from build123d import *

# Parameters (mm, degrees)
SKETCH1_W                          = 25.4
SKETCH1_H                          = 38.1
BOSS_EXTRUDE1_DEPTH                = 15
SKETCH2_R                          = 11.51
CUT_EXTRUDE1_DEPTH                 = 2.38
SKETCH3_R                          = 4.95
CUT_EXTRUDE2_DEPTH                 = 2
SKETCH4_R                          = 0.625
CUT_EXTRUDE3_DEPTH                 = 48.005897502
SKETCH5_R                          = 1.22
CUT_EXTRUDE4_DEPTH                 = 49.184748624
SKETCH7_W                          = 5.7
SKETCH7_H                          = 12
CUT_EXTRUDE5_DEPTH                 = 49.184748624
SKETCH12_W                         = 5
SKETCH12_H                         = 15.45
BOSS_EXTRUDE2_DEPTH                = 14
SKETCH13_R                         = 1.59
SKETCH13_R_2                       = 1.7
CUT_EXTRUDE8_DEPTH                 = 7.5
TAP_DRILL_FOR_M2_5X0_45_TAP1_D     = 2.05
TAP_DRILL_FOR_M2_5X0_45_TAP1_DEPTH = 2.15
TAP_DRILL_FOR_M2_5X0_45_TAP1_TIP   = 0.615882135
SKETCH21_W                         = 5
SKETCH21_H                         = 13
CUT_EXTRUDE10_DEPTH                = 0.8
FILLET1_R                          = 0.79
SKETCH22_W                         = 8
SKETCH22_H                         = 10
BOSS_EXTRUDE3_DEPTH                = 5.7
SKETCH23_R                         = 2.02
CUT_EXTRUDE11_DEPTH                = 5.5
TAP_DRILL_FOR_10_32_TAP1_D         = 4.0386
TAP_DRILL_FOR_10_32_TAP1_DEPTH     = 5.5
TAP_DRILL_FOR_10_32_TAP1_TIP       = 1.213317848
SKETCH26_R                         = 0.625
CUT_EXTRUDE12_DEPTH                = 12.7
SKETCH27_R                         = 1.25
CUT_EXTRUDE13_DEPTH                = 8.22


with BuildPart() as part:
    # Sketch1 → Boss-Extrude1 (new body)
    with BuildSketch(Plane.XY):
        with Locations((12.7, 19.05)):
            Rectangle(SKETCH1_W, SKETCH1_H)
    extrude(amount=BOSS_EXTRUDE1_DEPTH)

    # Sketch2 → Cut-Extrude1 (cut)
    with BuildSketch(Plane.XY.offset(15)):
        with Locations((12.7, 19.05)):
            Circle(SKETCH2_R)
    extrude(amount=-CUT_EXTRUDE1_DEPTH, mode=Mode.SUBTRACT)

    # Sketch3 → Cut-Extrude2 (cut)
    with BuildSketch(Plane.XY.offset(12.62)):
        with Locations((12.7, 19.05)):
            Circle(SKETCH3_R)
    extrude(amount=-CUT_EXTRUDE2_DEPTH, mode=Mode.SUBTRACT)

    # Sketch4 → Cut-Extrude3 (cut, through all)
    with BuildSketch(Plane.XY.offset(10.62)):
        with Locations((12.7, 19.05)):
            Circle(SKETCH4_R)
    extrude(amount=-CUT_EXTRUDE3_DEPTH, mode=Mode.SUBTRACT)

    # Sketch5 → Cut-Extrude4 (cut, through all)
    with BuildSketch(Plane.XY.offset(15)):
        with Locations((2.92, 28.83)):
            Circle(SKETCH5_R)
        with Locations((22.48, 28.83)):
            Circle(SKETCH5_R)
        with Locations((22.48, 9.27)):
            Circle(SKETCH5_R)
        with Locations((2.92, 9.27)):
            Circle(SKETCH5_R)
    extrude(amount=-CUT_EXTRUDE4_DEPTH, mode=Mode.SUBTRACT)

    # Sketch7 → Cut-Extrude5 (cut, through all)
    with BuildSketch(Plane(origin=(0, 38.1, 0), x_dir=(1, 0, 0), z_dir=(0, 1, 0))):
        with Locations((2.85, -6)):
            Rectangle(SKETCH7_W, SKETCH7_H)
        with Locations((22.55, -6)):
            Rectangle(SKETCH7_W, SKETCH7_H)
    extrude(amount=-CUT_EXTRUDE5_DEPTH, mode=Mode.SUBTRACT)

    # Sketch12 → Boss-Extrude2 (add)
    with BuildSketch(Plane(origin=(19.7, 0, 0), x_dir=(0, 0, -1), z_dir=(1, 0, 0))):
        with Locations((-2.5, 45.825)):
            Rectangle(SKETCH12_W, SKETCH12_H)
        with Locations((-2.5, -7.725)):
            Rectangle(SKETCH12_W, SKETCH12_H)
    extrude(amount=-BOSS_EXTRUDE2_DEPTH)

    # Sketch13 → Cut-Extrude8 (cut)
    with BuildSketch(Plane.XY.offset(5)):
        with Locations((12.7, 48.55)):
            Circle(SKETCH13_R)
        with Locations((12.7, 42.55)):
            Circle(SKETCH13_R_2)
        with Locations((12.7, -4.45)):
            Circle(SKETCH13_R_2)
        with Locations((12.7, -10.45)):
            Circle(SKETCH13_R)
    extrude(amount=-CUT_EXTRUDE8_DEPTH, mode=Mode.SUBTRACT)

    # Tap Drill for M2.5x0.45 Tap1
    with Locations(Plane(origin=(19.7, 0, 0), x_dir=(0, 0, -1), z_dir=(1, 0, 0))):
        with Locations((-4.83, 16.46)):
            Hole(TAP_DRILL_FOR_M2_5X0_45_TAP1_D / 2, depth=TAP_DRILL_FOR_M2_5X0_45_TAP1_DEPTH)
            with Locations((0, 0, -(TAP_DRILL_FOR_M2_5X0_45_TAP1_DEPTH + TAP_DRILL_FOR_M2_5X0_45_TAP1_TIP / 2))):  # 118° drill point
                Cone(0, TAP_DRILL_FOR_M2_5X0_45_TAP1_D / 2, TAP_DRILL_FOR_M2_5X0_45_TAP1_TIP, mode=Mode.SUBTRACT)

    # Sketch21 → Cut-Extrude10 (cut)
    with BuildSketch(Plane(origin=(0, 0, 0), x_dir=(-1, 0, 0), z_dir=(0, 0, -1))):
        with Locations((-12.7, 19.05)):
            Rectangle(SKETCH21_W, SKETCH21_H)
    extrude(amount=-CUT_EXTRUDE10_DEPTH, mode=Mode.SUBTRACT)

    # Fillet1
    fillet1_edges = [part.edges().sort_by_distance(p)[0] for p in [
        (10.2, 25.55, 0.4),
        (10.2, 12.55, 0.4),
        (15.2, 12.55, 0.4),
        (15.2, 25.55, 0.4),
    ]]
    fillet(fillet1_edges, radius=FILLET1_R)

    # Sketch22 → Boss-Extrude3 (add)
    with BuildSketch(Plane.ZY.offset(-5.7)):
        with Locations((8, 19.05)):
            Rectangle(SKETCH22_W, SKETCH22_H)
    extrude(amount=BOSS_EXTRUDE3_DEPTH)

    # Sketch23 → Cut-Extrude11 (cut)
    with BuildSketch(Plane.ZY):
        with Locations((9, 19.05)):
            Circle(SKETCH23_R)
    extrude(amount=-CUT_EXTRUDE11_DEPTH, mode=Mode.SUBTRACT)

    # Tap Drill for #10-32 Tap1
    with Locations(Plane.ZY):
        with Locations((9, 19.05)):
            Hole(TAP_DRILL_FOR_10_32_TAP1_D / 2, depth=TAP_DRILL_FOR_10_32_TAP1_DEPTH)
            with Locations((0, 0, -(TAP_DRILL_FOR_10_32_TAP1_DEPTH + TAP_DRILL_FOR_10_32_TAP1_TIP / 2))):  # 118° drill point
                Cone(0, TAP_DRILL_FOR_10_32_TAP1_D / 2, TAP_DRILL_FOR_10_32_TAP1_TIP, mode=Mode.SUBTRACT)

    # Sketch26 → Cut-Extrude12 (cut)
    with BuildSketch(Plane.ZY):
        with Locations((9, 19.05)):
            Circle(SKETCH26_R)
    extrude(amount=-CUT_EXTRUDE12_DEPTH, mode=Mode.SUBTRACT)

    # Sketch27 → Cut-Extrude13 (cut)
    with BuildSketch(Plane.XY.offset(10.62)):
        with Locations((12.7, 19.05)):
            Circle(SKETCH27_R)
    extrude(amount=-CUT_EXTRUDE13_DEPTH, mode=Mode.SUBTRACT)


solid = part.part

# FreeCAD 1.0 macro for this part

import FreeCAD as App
import Part
import Sketcher
from FreeCAD import Vector
Q = App.Units.Quantity


def edges_at(feature, points):
    """Names of the edges that pass closest to the given points."""
    edges = feature.Shape.Edges
    near = lambda p: min(range(len(edges)), key=lambda i: edges[i].distToShape(Part.Vertex(*p))[0])
    return sorted({f"Edge{near(p) + 1}" for p in points})

doc = App.newDocument("Part")
body = doc.addObject("PartDesign::Body", "Body")

sketch1 = body.newObject("Sketcher::SketchObject", "Sketch")
sketch1.AttachmentSupport = (doc.getObject("XY_Plane"), [""])
sketch1.MapMode = "FlatFace"
sketch1.addGeometry([
    Part.LineSegment(Vector(0, 38, 0), Vector(0, 0, 0)),
    Part.LineSegment(Vector(0, 0, 0), Vector(25, 0, 0)),
    Part.LineSegment(Vector(25, 0, 0), Vector(25, 38, 0)),
    Part.LineSegment(Vector(25, 38, 0), Vector(0, 38, 0)),
], False)
sketch1.addConstraint([
    Sketcher.Constraint("Coincident", 0, 2, 1, 1),
    Sketcher.Constraint("Coincident", 1, 2, 2, 1),
    Sketcher.Constraint("Coincident", 2, 2, 3, 1),
    Sketcher.Constraint("Coincident", 3, 2, 0, 1),
    Sketcher.Constraint("Vertical", 0),
    Sketcher.Constraint("Horizontal", 1),
    Sketcher.Constraint("Vertical", 2),
    Sketcher.Constraint("Horizontal", 3),
    Sketcher.Constraint("Coincident", 0, 2, -1, 1),
    Sketcher.Constraint("DistanceX", 1, 1, 1, 2, Q("25.4 mm")),
    Sketcher.Constraint("DistanceY", 0, 2, 0, 1, Q("38.1 mm")),
])
pad1 = body.newObject("PartDesign::Pad", "Pad")
pad1.Profile = sketch1
pad1.Length = 15

sketch2 = body.newObject("Sketcher::SketchObject", "Sketch001")
sketch2.AttachmentSupport = (doc.getObject("XY_Plane"), [""])
sketch2.MapMode = "FlatFace"
sketch2.AttachmentOffset = App.Placement(Vector(0, 0, 15), App.Rotation())
sketch2.addGeometry(Part.Circle(Vector(13, 19, 0), Vector(0, 0, 1), 12), False)
sketch2.addConstraint([
    Sketcher.Constraint("Diameter", 0, Q("23.02 mm")),
    Sketcher.Constraint("DistanceX", -1, 1, 0, 3, Q("12.7 mm")),
    Sketcher.Constraint("DistanceY", -1, 1, 0, 3, Q("19.05 mm")),
])
pocket1 = body.newObject("PartDesign::Pocket", "Pocket")
pocket1.Profile = sketch2
pocket1.Length = 2.38

sketch3 = body.newObject("Sketcher::SketchObject", "Sketch002")
sketch3.AttachmentSupport = (doc.getObject("XY_Plane"), [""])
sketch3.MapMode = "FlatFace"
sketch3.AttachmentOffset = App.Placement(Vector(0, 0, 12.62), App.Rotation())
sketch3.addGeometry(Part.Circle(Vector(12.7, 19.1, 0), Vector(0, 0, 1), 5), False)
sketch3.addConstraint([
    Sketcher.Constraint("Diameter", 0, Q("9.9 mm")),
    Sketcher.Constraint("DistanceX", -1, 1, 0, 3, Q("12.7 mm")),
    Sketcher.Constraint("DistanceY", -1, 1, 0, 3, Q("19.05 mm")),
])
pocket2 = body.newObject("PartDesign::Pocket", "Pocket001")
pocket2.Profile = sketch3
pocket2.Length = 2

sketch4 = body.newObject("Sketcher::SketchObject", "Sketch003")
sketch4.AttachmentSupport = (doc.getObject("XY_Plane"), [""])
sketch4.MapMode = "FlatFace"
sketch4.AttachmentOffset = App.Placement(Vector(0, 0, 10.62), App.Rotation())
sketch4.addGeometry(Part.Circle(Vector(12.7, 19.1, 0), Vector(0, 0, 1), 0.6), False)
sketch4.addConstraint([
    Sketcher.Constraint("Diameter", 0, Q("1.25 mm")),
    Sketcher.Constraint("DistanceX", -1, 1, 0, 3, Q("12.7 mm")),
    Sketcher.Constraint("DistanceY", -1, 1, 0, 3, Q("19.05 mm")),
])
pocket3 = body.newObject("PartDesign::Pocket", "Pocket002")
pocket3.Profile = sketch4
pocket3.Type = "ThroughAll"

sketch5 = body.newObject("Sketcher::SketchObject", "Sketch004")
sketch5.AttachmentSupport = (doc.getObject("XY_Plane"), [""])
sketch5.MapMode = "FlatFace"
sketch5.AttachmentOffset = App.Placement(Vector(0, 0, 15), App.Rotation())
sketch5.addGeometry([
    Part.Circle(Vector(2.9, 28.8, 0), Vector(0, 0, 1), 1.2),
    Part.Circle(Vector(22.5, 28.8, 0), Vector(0, 0, 1), 1.2),
    Part.Circle(Vector(22.5, 9.3, 0), Vector(0, 0, 1), 1.2),
    Part.Circle(Vector(2.9, 9.3, 0), Vector(0, 0, 1), 1.2),
], False)
sketch5.addConstraint([
    Sketcher.Constraint("Equal", 0, 1),
    Sketcher.Constraint("Equal", 1, 2),
    Sketcher.Constraint("Equal", 2, 3),
    Sketcher.Constraint("Horizontal", 0, 3, 1, 3),
    Sketcher.Constraint("Horizontal", 2, 3, 3, 3),
    Sketcher.Constraint("Vertical", 1, 3, 2, 3),
    Sketcher.Constraint("Vertical", 0, 3, 3, 3),
    Sketcher.Constraint("Diameter", 0, Q("2.44 mm")),
    Sketcher.Constraint("DistanceX", -1, 1, 0, 3, Q("2.92 mm")),
    Sketcher.Constraint("DistanceY", -1, 1, 0, 3, Q("28.83 mm")),
    Sketcher.Constraint("DistanceX", -1, 1, 1, 3, Q("22.48 mm")),
    Sketcher.Constraint("DistanceY", -1, 1, 2, 3, Q("9.27 mm")),
])
pocket4 = body.newObject("PartDesign::Pocket", "Pocket003")
pocket4.Profile = sketch5
pocket4.Type = "ThroughAll"

sketch6 = body.newObject("Sketcher::SketchObject", "Sketch005")
sketch6.AttachmentSupport = (doc.getObject("XZ_Plane"), [""])
sketch6.MapMode = "FlatFace"
sketch6.AttachmentOffset = App.Placement(Vector(0, 0, -38.1), App.Rotation())
sketch6.addGeometry([
    Part.LineSegment(Vector(0, 0, 0), Vector(0, 12, 0)),
    Part.LineSegment(Vector(0, 12, 0), Vector(6, 12, 0)),
    Part.LineSegment(Vector(6, 12, 0), Vector(6, 0, 0)),
    Part.LineSegment(Vector(6, 0, 0), Vector(0, 0, 0)),
    Part.LineSegment(Vector(20, 0, 0), Vector(20, 12, 0)),
    Part.LineSegment(Vector(20, 12, 0), Vector(25, 12, 0)),
    Part.LineSegment(Vector(25, 12, 0), Vector(25, 0, 0)),
    Part.LineSegment(Vector(25, 0, 0), Vector(20, 0, 0)),
], False)
sketch6.addConstraint([
    Sketcher.Constraint("Coincident", 0, 2, 1, 1),
    Sketcher.Constraint("Coincident", 1, 2, 2, 1),
    Sketcher.Constraint("Coincident", 2, 2, 3, 1),
    Sketcher.Constraint("Coincident", 3, 2, 0, 1),
    Sketcher.Constraint("Coincident", 4, 2, 5, 1),
    Sketcher.Constraint("Coincident", 5, 2, 6, 1),
    Sketcher.Constraint("Coincident", 6, 2, 7, 1),
    Sketcher.Constraint("Coincident", 7, 2, 4, 1),
    Sketcher.Constraint("Vertical", 0),
    Sketcher.Constraint("Horizontal", 1),
    Sketcher.Constraint("Vertical", 2),
    Sketcher.Constraint("Horizontal", 3),
    Sketcher.Constraint("Vertical", 4),
    Sketcher.Constraint("Horizontal", 5),
    Sketcher.Constraint("Vertical", 6),
    Sketcher.Constraint("Horizontal", 7),
    Sketcher.Constraint("Coincident", 3, 2, -1, 1),
    Sketcher.Constraint("PointOnObject", 6, 2, -1),
    Sketcher.Constraint("Horizontal", 1, 2, 4, 2),
    Sketcher.Constraint("Equal", 3, 5),
    Sketcher.Constraint("DistanceY", 0, 1, 0, 2, Q("12 mm")),
    Sketcher.Constraint("DistanceX", 1, 1, 1, 2, Q("5.7 mm")),
    Sketcher.Constraint("DistanceX", 1, 2, 4, 2, Q("14 mm")),
])
pocket5 = body.newObject("PartDesign::Pocket", "Pocket004")
pocket5.Profile = sketch6
pocket5.Type = "ThroughAll"
pocket5.Reversed = True

sketch7 = body.newObject("Sketcher::SketchObject", "Sketch006")
sketch7.AttachmentSupport = (doc.getObject("YZ_Plane"), [""])
sketch7.MapMode = "FlatFace"
sketch7.AttachmentOffset = App.Placement(Vector(0, 0, 19.7), App.Rotation())
sketch7.addGeometry([
    Part.LineSegment(Vector(54, 5, 0), Vector(38, 5, 0)),
    Part.LineSegment(Vector(38, 5, 0), Vector(38, 0, 0)),
    Part.LineSegment(Vector(38, 0, 0), Vector(54, 0, 0)),
    Part.LineSegment(Vector(54, 0, 0), Vector(54, 5, 0)),
    Part.LineSegment(Vector(0, 5, 0), Vector(-15, 5, 0)),
    Part.LineSegment(Vector(-15, 5, 0), Vector(-15, 0, 0)),
    Part.LineSegment(Vector(-15, 0, 0), Vector(0, 0, 0)),
    Part.LineSegment(Vector(0, 0, 0), Vector(0, 5, 0)),
], False)
sketch7.addConstraint([
    Sketcher.Constraint("Coincident", 0, 2, 1, 1),
    Sketcher.Constraint("Coincident", 1, 2, 2, 1),
    Sketcher.Constraint("Coincident", 2, 2, 3, 1),
    Sketcher.Constraint("Coincident", 3, 2, 0, 1),
    Sketcher.Constraint("Coincident", 4, 2, 5, 1),
    Sketcher.Constraint("Coincident", 5, 2, 6, 1),
    Sketcher.Constraint("Coincident", 6, 2, 7, 1),
    Sketcher.Constraint("Coincident", 7, 2, 4, 1),
    Sketcher.Constraint("Horizontal", 0),
    Sketcher.Constraint("Vertical", 1),
    Sketcher.Constraint("Horizontal", 2),
    Sketcher.Constraint("Vertical", 3),
    Sketcher.Constraint("Horizontal", 4),
    Sketcher.Constraint("Vertical", 5),
    Sketcher.Constraint("Horizontal", 6),
    Sketcher.Constraint("Vertical", 7),
    Sketcher.Constraint("Coincident", 6, 2, -1, 1),
    Sketcher.Constraint("PointOnObject", 1, 2, -1),
    Sketcher.Constraint("Horizontal", 3, 2, 4, 2),
    Sketcher.Constraint("Equal", 2, 4),
    Sketcher.Constraint("DistanceY", 1, 2, 1, 1, Q("5 mm")),
    Sketcher.Constraint("DistanceX", 4, 2, 3, 2, Q("69 mm")),
    Sketcher.Constraint("DistanceX", 0, 2, 0, 1, Q("15.45 mm")),
])
pad2 = body.newObject("PartDesign::Pad", "Pad001")
pad2.Profile = sketch7
pad2.Length = 14
pad2.Reversed = True

sketch8 = body.newObject("Sketcher::SketchObject", "Sketch007")
sketch8.AttachmentSupport = (doc.getObject("XY_Plane"), [""])
sketch8.MapMode = "FlatFace"
sketch8.AttachmentOffset = App.Placement(Vector(0, 0, 5), App.Rotation())
sketch8.addGeometry([
    Part.Circle(Vector(12.7, 48.5, 0), Vector(0, 0, 1), 1.6),
    Part.Circle(Vector(12.7, 42.5, 0), Vector(0, 0, 1), 1.7),
    Part.Circle(Vector(12.7, -4.5, 0), Vector(0, 0, 1), 1.7),
    Part.Circle(Vector(12.7, -10.4, 0), Vector(0, 0, 1), 1.6),
], False)
sketch8.addConstraint([
    Sketcher.Constraint("Equal", 1, 2),
    Sketcher.Constraint("Equal", 0, 3),
    Sketcher.Constraint("Vertical", 0, 3, 1, 3),
    Sketcher.Constraint("Vertical", 1, 3, 2, 3),
    Sketcher.Constraint("Vertical", 2, 3, 3, 3),
    Sketcher.Constraint("Diameter", 1, Q("3.4 mm")),
    Sketcher.Constraint("Diameter", 0, Q("3.18 mm")),
    Sketcher.Constraint("DistanceY", 1, 3, 0, 3, Q("6 mm")),
    Sketcher.Constraint("DistanceY", 2, 3, 1, 3, Q("47 mm")),
    Sketcher.Constraint("DistanceY", 3, 3, 2, 3, Q("6 mm")),
    Sketcher.Constraint("DistanceX", -1, 1, 0, 3, Q("12.7 mm")),
    Sketcher.Constraint("DistanceY", -1, 1, 0, 3, Q("48.55 mm")),
])
pocket6 = body.newObject("PartDesign::Pocket", "Pocket005")
pocket6.Profile = sketch8
pocket6.Length = 7.5

sketch9 = body.newObject("Sketcher::SketchObject", "Sketch008")
sketch9.AttachmentSupport = (doc.getObject("YZ_Plane"), [""])
sketch9.MapMode = "FlatFace"
sketch9.AttachmentOffset = App.Placement(Vector(0, 0, 19.7), App.Rotation())
sketch9.addGeometry(Part.Circle(Vector(16.5, 4.8, 0), Vector(0, 0, 1), 1), False)
sketch9.addConstraint([
    Sketcher.Constraint("Diameter", 0, Q("2.05 mm")),
    Sketcher.Constraint("DistanceX", -1, 1, 0, 3, Q("16.46 mm")),
    Sketcher.Constraint("DistanceY", -1, 1, 0, 3, Q("4.83 mm")),
])
doc.recompute()
hole = body.newObject("PartDesign::Hole", "Hole")
hole.Profile = sketch9
hole.ThreadType = "None"
hole.Diameter = 2.05
hole.DepthType = "Dimension"
hole.Depth = 2.15
hole.DrillPoint = "Angled"
hole.DrillPointAngle = 118

sketch10 = body.newObject("Sketcher::SketchObject", "Sketch009")
sketch10.AttachmentSupport = (doc.getObject("XY_Plane"), [""])
sketch10.MapMode = "FlatFace"
sketch10.addGeometry([
    Part.LineSegment(Vector(15, 26, 0), Vector(15, 13, 0)),
    Part.LineSegment(Vector(15, 13, 0), Vector(10, 13, 0)),
    Part.LineSegment(Vector(10, 13, 0), Vector(10, 26, 0)),
    Part.LineSegment(Vector(10, 26, 0), Vector(15, 26, 0)),
], False)
sketch10.addConstraint([
    Sketcher.Constraint("Coincident", 0, 2, 1, 1),
    Sketcher.Constraint("Coincident", 1, 2, 2, 1),
    Sketcher.Constraint("Coincident", 2, 2, 3, 1),
    Sketcher.Constraint("Coincident", 3, 2, 0, 1),
    Sketcher.Constraint("Vertical", 0),
    Sketcher.Constraint("Horizontal", 1),
    Sketcher.Constraint("Vertical", 2),
    Sketcher.Constraint("Horizontal", 3),
    Sketcher.Constraint("DistanceX", 1, 2, 1, 1, Q("5 mm")),
    Sketcher.Constraint("DistanceY", 0, 2, 0, 1, Q("13 mm")),
    Sketcher.Constraint("DistanceX", -1, 1, 0, 2, Q("15.2 mm")),
    Sketcher.Constraint("DistanceY", -1, 1, 0, 2, Q("12.55 mm")),
])
pocket7 = body.newObject("PartDesign::Pocket", "Pocket006")
pocket7.Profile = sketch10
pocket7.Length = 0.8
pocket7.Reversed = True
doc.recompute()

fillet = body.newObject("PartDesign::Fillet", "Fillet")
fillet.Base = (pocket7, edges_at(pocket7, [
    (10.2, 25.55, 0.4),
    (10.2, 12.55, 0.4),
    (15.2, 12.55, 0.4),
    (15.2, 25.55, 0.4),
]))
fillet.Radius = 0.79

sketch11 = body.newObject("Sketcher::SketchObject", "Sketch010")
sketch11.AttachmentSupport = (doc.getObject("YZ_Plane"), [""])
sketch11.MapMode = "FlatFace"
sketch11.AttachmentOffset = App.Placement(Vector(0, 0, 5.7), App.Rotation())
sketch11.addGeometry([
    Part.LineSegment(Vector(24, 4, 0), Vector(14, 4, 0)),
    Part.LineSegment(Vector(14, 4, 0), Vector(14, 12, 0)),
    Part.LineSegment(Vector(14, 12, 0), Vector(24, 12, 0)),
    Part.LineSegment(Vector(24, 12, 0), Vector(24, 4, 0)),
], False)
sketch11.addConstraint([
    Sketcher.Constraint("Coincident", 0, 2, 1, 1),
    Sketcher.Constraint("Coincident", 1, 2, 2, 1),
    Sketcher.Constraint("Coincident", 2, 2, 3, 1),
    Sketcher.Constraint("Coincident", 3, 2, 0, 1),
    Sketcher.Constraint("Horizontal", 0),
    Sketcher.Constraint("Vertical", 1),
    Sketcher.Constraint("Horizontal", 2),
    Sketcher.Constraint("Vertical", 3),
    Sketcher.Constraint("DistanceX", 0, 2, 0, 1, Q("10 mm")),
    Sketcher.Constraint("DistanceY", 1, 1, 1, 2, Q("8 mm")),
    Sketcher.Constraint("DistanceY", -1, 1, 0, 2, Q("4 mm")),
    Sketcher.Constraint("DistanceX", -1, 1, 0, 2, Q("14.05 mm")),
])
pad3 = body.newObject("PartDesign::Pad", "Pad002")
pad3.Profile = sketch11
pad3.Length = 5.7
pad3.Reversed = True

sketch12 = body.newObject("Sketcher::SketchObject", "Sketch011")
sketch12.AttachmentSupport = (doc.getObject("YZ_Plane"), [""])
sketch12.MapMode = "FlatFace"
sketch12.addGeometry(Part.Circle(Vector(19.1, 9, 0), Vector(0, 0, 1), 2), False)
sketch12.addConstraint([
    Sketcher.Constraint("Diameter", 0, Q("4.04 mm")),
    Sketcher.Constraint("DistanceY", -1, 1, 0, 3, Q("9 mm")),
    Sketcher.Constraint("DistanceX", -1, 1, 0, 3, Q("19.05 mm")),
])
pocket8 = body.newObject("PartDesign::Pocket", "Pocket007")
pocket8.Profile = sketch12
pocket8.Length = 5.5
pocket8.Reversed = True

sketch13 = body.newObject("Sketcher::SketchObject", "Sketch012")
sketch13.AttachmentSupport = (doc.getObject("YZ_Plane"), [""])
sketch13.MapMode = "FlatFace"
sketch13.addGeometry(Part.Circle(Vector(19.1, 9, 0), Vector(0, 0, 1), 2), False)
sketch13.addConstraint([
    Sketcher.Constraint("DistanceY", -1, 1, 0, 3, Q("9 mm")),
    Sketcher.Constraint("Diameter", 0, Q("4.0386 mm")),
    Sketcher.Constraint("DistanceX", -1, 1, 0, 3, Q("19.05 mm")),
])
doc.recompute()
hole2 = body.newObject("PartDesign::Hole", "Hole001")
hole2.Profile = sketch13
hole2.ThreadType = "None"
hole2.Diameter = 4.0386
hole2.DepthType = "Dimension"
hole2.Depth = 5.5
hole2.DrillPoint = "Angled"
hole2.DrillPointAngle = 118
hole2.Reversed = True

sketch14 = body.newObject("Sketcher::SketchObject", "Sketch013")
sketch14.AttachmentSupport = (doc.getObject("YZ_Plane"), [""])
sketch14.MapMode = "FlatFace"
sketch14.addGeometry(Part.Circle(Vector(19.1, 9, 0), Vector(0, 0, 1), 0.6), False)
sketch14.addConstraint([
    Sketcher.Constraint("Diameter", 0, Q("1.25 mm")),
    Sketcher.Constraint("DistanceY", -1, 1, 0, 3, Q("9 mm")),
    Sketcher.Constraint("DistanceX", -1, 1, 0, 3, Q("19.05 mm")),
])
pocket9 = body.newObject("PartDesign::Pocket", "Pocket008")
pocket9.Profile = sketch14
pocket9.Length = 12.7
pocket9.Reversed = True

sketch15 = body.newObject("Sketcher::SketchObject", "Sketch014")
sketch15.AttachmentSupport = (doc.getObject("XY_Plane"), [""])
sketch15.MapMode = "FlatFace"
sketch15.AttachmentOffset = App.Placement(Vector(0, 0, 10.62), App.Rotation())
sketch15.addGeometry(Part.Circle(Vector(12.7, 19.1, 0), Vector(0, 0, 1), 1.2), False)
sketch15.addConstraint([
    Sketcher.Constraint("Diameter", 0, Q("2.5 mm")),
    Sketcher.Constraint("DistanceX", -1, 1, 0, 3, Q("12.7 mm")),
    Sketcher.Constraint("DistanceY", -1, 1, 0, 3, Q("19.05 mm")),
])
pocket10 = body.newObject("PartDesign::Pocket", "Pocket009")
pocket10.Profile = sketch15
pocket10.Length = 8.22

doc.recompute()
